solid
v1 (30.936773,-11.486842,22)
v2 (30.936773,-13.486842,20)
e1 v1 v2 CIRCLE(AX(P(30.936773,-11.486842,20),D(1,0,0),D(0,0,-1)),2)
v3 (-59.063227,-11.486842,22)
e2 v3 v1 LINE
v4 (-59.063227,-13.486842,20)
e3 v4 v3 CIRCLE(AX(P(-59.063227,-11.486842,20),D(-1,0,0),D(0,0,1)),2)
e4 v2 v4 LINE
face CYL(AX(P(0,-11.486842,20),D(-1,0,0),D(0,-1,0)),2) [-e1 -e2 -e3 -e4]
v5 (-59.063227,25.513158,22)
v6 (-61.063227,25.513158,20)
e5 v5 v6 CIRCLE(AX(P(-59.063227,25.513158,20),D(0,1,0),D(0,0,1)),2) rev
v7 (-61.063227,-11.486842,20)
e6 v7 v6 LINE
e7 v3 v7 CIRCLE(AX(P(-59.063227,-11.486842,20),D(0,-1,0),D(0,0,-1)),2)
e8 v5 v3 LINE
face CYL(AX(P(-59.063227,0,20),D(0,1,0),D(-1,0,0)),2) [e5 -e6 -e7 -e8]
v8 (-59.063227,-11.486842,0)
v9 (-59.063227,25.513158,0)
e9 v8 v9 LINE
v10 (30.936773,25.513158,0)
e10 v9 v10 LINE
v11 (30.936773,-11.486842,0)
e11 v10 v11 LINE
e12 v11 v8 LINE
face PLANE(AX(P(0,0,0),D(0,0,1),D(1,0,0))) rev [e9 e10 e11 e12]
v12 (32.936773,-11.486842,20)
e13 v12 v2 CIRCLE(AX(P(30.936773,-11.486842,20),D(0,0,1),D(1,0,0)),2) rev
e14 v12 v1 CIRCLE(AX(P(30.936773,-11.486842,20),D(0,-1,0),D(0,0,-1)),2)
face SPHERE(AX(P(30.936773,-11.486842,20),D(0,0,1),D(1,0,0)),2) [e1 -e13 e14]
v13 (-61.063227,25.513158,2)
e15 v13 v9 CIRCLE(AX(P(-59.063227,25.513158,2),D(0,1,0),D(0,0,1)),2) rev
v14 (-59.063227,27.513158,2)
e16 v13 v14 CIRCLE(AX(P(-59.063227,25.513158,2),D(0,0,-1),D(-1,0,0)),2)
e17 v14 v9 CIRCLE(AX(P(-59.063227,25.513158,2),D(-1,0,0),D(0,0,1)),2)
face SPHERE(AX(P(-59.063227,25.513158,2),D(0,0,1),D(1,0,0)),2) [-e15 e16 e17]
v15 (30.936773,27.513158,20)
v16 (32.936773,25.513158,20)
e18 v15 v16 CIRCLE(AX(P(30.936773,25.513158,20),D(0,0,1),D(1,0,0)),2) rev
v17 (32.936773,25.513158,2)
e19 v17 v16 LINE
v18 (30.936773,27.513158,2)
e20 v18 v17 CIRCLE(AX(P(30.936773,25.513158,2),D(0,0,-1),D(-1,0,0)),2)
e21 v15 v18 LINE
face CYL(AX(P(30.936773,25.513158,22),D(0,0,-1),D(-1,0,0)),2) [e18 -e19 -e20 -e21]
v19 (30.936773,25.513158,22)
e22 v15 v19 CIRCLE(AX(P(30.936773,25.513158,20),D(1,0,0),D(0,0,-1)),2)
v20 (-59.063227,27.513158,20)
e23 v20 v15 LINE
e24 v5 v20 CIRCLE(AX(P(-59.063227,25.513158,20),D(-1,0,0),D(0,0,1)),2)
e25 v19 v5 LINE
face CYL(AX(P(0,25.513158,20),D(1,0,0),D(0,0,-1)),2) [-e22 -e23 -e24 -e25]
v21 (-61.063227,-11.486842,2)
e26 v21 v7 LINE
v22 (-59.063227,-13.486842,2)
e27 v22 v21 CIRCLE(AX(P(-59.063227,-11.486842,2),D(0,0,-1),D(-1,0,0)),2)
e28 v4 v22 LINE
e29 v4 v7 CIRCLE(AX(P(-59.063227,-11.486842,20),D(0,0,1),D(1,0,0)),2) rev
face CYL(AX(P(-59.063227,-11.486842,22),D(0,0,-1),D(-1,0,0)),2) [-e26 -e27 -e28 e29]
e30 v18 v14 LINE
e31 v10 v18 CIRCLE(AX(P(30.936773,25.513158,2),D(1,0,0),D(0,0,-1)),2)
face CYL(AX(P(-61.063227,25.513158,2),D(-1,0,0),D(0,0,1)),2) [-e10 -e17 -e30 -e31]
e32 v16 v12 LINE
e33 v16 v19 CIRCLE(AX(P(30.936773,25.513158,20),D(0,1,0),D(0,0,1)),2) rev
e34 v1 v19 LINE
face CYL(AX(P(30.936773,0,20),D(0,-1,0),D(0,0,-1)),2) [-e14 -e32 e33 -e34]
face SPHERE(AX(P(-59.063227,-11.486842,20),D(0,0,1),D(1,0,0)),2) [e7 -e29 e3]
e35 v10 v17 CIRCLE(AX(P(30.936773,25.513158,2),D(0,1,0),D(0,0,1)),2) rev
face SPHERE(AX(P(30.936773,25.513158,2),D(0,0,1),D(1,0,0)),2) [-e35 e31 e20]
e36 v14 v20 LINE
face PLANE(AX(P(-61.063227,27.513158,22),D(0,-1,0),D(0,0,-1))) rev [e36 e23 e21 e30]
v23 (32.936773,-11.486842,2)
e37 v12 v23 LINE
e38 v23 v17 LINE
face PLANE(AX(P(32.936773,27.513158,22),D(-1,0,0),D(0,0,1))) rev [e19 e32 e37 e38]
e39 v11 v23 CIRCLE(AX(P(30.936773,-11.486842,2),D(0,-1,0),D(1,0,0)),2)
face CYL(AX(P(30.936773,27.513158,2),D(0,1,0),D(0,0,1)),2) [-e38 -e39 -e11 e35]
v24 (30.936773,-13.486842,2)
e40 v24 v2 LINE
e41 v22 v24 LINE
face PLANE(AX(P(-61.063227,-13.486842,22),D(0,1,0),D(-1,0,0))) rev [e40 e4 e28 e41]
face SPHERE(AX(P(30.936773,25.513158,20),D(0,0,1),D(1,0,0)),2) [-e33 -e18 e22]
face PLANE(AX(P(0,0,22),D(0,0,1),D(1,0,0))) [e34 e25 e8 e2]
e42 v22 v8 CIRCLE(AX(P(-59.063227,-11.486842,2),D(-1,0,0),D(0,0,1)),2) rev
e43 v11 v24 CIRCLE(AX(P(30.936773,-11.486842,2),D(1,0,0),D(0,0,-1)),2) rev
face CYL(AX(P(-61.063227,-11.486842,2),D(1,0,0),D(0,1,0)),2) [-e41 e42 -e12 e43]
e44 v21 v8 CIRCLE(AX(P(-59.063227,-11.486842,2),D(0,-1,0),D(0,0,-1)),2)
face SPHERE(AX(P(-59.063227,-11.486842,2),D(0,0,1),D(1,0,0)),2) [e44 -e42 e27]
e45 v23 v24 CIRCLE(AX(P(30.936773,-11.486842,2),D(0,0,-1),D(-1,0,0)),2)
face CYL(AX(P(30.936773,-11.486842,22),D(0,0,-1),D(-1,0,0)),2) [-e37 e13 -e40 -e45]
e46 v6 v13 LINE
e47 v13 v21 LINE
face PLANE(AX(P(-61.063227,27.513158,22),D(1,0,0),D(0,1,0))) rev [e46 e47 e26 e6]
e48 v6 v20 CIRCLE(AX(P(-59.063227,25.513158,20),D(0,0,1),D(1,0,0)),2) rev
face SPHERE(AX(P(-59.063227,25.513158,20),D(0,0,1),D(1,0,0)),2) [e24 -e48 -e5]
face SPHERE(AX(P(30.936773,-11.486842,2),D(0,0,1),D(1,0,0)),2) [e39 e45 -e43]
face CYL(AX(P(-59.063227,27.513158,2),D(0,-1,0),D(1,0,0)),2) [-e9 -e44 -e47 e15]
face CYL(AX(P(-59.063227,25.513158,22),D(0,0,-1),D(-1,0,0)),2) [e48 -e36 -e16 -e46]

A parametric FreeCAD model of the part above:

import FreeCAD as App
import Part
import Sketcher
Q = App.Units.Quantity

doc = App.newDocument("Part")
body = doc.addObject("PartDesign::Body", "Body")

# Sketch on XY plane
sketch1 = body.newObject("Sketcher::SketchObject", "Sketch")
sketch1.AttachmentSupport = (doc.getObject("XY_Plane"), [""])
sketch1.MapMode = "FlatFace"
sketch1.addGeometry([
    Part.LineSegment(App.Vector(-61, 28, 0), App.Vector(-61, -13, 0)),
    Part.LineSegment(App.Vector(-61, -13, 0), App.Vector(33, -13, 0)),
    Part.LineSegment(App.Vector(33, -13, 0), App.Vector(33, 28, 0)),
    Part.LineSegment(App.Vector(33, 28, 0), App.Vector(-61, 28, 0)),
], False)
sketch1.addConstraint([
    Sketcher.Constraint("Coincident", 0, 2, 1, 1),
    Sketcher.Constraint("Coincident", 1, 2, 2, 1),
    Sketcher.Constraint("Coincident", 2, 2, 3, 1),
    Sketcher.Constraint("Coincident", 3, 2, 0, 1),
    Sketcher.Constraint("Vertical", 0),
    Sketcher.Constraint("Horizontal", 1),
    Sketcher.Constraint("Vertical", 2),
    Sketcher.Constraint("Horizontal", 3),
    Sketcher.Constraint("DistanceX", 1, 1, 1, 2, Q("94 mm")),
    Sketcher.Constraint("DistanceY", 0, 2, 0, 1, Q("41 mm")),
    Sketcher.Constraint("DistanceX", 0, 2, -1, 1, Q("61.063227 mm")),
    Sketcher.Constraint("DistanceY", 0, 2, -1, 1, Q("13.486842 mm")),
])
pad1 = body.newObject("PartDesign::Pad", "Pad")
pad1.Profile = sketch1
pad1.Length = 22
doc.recompute()

fillet = body.newObject("PartDesign::Fillet", "Fillet")
fillet.Base = (pad1, ["Edge1"])
fillet.UseAllEdges = True
fillet.Radius = 2

doc.recompute()
